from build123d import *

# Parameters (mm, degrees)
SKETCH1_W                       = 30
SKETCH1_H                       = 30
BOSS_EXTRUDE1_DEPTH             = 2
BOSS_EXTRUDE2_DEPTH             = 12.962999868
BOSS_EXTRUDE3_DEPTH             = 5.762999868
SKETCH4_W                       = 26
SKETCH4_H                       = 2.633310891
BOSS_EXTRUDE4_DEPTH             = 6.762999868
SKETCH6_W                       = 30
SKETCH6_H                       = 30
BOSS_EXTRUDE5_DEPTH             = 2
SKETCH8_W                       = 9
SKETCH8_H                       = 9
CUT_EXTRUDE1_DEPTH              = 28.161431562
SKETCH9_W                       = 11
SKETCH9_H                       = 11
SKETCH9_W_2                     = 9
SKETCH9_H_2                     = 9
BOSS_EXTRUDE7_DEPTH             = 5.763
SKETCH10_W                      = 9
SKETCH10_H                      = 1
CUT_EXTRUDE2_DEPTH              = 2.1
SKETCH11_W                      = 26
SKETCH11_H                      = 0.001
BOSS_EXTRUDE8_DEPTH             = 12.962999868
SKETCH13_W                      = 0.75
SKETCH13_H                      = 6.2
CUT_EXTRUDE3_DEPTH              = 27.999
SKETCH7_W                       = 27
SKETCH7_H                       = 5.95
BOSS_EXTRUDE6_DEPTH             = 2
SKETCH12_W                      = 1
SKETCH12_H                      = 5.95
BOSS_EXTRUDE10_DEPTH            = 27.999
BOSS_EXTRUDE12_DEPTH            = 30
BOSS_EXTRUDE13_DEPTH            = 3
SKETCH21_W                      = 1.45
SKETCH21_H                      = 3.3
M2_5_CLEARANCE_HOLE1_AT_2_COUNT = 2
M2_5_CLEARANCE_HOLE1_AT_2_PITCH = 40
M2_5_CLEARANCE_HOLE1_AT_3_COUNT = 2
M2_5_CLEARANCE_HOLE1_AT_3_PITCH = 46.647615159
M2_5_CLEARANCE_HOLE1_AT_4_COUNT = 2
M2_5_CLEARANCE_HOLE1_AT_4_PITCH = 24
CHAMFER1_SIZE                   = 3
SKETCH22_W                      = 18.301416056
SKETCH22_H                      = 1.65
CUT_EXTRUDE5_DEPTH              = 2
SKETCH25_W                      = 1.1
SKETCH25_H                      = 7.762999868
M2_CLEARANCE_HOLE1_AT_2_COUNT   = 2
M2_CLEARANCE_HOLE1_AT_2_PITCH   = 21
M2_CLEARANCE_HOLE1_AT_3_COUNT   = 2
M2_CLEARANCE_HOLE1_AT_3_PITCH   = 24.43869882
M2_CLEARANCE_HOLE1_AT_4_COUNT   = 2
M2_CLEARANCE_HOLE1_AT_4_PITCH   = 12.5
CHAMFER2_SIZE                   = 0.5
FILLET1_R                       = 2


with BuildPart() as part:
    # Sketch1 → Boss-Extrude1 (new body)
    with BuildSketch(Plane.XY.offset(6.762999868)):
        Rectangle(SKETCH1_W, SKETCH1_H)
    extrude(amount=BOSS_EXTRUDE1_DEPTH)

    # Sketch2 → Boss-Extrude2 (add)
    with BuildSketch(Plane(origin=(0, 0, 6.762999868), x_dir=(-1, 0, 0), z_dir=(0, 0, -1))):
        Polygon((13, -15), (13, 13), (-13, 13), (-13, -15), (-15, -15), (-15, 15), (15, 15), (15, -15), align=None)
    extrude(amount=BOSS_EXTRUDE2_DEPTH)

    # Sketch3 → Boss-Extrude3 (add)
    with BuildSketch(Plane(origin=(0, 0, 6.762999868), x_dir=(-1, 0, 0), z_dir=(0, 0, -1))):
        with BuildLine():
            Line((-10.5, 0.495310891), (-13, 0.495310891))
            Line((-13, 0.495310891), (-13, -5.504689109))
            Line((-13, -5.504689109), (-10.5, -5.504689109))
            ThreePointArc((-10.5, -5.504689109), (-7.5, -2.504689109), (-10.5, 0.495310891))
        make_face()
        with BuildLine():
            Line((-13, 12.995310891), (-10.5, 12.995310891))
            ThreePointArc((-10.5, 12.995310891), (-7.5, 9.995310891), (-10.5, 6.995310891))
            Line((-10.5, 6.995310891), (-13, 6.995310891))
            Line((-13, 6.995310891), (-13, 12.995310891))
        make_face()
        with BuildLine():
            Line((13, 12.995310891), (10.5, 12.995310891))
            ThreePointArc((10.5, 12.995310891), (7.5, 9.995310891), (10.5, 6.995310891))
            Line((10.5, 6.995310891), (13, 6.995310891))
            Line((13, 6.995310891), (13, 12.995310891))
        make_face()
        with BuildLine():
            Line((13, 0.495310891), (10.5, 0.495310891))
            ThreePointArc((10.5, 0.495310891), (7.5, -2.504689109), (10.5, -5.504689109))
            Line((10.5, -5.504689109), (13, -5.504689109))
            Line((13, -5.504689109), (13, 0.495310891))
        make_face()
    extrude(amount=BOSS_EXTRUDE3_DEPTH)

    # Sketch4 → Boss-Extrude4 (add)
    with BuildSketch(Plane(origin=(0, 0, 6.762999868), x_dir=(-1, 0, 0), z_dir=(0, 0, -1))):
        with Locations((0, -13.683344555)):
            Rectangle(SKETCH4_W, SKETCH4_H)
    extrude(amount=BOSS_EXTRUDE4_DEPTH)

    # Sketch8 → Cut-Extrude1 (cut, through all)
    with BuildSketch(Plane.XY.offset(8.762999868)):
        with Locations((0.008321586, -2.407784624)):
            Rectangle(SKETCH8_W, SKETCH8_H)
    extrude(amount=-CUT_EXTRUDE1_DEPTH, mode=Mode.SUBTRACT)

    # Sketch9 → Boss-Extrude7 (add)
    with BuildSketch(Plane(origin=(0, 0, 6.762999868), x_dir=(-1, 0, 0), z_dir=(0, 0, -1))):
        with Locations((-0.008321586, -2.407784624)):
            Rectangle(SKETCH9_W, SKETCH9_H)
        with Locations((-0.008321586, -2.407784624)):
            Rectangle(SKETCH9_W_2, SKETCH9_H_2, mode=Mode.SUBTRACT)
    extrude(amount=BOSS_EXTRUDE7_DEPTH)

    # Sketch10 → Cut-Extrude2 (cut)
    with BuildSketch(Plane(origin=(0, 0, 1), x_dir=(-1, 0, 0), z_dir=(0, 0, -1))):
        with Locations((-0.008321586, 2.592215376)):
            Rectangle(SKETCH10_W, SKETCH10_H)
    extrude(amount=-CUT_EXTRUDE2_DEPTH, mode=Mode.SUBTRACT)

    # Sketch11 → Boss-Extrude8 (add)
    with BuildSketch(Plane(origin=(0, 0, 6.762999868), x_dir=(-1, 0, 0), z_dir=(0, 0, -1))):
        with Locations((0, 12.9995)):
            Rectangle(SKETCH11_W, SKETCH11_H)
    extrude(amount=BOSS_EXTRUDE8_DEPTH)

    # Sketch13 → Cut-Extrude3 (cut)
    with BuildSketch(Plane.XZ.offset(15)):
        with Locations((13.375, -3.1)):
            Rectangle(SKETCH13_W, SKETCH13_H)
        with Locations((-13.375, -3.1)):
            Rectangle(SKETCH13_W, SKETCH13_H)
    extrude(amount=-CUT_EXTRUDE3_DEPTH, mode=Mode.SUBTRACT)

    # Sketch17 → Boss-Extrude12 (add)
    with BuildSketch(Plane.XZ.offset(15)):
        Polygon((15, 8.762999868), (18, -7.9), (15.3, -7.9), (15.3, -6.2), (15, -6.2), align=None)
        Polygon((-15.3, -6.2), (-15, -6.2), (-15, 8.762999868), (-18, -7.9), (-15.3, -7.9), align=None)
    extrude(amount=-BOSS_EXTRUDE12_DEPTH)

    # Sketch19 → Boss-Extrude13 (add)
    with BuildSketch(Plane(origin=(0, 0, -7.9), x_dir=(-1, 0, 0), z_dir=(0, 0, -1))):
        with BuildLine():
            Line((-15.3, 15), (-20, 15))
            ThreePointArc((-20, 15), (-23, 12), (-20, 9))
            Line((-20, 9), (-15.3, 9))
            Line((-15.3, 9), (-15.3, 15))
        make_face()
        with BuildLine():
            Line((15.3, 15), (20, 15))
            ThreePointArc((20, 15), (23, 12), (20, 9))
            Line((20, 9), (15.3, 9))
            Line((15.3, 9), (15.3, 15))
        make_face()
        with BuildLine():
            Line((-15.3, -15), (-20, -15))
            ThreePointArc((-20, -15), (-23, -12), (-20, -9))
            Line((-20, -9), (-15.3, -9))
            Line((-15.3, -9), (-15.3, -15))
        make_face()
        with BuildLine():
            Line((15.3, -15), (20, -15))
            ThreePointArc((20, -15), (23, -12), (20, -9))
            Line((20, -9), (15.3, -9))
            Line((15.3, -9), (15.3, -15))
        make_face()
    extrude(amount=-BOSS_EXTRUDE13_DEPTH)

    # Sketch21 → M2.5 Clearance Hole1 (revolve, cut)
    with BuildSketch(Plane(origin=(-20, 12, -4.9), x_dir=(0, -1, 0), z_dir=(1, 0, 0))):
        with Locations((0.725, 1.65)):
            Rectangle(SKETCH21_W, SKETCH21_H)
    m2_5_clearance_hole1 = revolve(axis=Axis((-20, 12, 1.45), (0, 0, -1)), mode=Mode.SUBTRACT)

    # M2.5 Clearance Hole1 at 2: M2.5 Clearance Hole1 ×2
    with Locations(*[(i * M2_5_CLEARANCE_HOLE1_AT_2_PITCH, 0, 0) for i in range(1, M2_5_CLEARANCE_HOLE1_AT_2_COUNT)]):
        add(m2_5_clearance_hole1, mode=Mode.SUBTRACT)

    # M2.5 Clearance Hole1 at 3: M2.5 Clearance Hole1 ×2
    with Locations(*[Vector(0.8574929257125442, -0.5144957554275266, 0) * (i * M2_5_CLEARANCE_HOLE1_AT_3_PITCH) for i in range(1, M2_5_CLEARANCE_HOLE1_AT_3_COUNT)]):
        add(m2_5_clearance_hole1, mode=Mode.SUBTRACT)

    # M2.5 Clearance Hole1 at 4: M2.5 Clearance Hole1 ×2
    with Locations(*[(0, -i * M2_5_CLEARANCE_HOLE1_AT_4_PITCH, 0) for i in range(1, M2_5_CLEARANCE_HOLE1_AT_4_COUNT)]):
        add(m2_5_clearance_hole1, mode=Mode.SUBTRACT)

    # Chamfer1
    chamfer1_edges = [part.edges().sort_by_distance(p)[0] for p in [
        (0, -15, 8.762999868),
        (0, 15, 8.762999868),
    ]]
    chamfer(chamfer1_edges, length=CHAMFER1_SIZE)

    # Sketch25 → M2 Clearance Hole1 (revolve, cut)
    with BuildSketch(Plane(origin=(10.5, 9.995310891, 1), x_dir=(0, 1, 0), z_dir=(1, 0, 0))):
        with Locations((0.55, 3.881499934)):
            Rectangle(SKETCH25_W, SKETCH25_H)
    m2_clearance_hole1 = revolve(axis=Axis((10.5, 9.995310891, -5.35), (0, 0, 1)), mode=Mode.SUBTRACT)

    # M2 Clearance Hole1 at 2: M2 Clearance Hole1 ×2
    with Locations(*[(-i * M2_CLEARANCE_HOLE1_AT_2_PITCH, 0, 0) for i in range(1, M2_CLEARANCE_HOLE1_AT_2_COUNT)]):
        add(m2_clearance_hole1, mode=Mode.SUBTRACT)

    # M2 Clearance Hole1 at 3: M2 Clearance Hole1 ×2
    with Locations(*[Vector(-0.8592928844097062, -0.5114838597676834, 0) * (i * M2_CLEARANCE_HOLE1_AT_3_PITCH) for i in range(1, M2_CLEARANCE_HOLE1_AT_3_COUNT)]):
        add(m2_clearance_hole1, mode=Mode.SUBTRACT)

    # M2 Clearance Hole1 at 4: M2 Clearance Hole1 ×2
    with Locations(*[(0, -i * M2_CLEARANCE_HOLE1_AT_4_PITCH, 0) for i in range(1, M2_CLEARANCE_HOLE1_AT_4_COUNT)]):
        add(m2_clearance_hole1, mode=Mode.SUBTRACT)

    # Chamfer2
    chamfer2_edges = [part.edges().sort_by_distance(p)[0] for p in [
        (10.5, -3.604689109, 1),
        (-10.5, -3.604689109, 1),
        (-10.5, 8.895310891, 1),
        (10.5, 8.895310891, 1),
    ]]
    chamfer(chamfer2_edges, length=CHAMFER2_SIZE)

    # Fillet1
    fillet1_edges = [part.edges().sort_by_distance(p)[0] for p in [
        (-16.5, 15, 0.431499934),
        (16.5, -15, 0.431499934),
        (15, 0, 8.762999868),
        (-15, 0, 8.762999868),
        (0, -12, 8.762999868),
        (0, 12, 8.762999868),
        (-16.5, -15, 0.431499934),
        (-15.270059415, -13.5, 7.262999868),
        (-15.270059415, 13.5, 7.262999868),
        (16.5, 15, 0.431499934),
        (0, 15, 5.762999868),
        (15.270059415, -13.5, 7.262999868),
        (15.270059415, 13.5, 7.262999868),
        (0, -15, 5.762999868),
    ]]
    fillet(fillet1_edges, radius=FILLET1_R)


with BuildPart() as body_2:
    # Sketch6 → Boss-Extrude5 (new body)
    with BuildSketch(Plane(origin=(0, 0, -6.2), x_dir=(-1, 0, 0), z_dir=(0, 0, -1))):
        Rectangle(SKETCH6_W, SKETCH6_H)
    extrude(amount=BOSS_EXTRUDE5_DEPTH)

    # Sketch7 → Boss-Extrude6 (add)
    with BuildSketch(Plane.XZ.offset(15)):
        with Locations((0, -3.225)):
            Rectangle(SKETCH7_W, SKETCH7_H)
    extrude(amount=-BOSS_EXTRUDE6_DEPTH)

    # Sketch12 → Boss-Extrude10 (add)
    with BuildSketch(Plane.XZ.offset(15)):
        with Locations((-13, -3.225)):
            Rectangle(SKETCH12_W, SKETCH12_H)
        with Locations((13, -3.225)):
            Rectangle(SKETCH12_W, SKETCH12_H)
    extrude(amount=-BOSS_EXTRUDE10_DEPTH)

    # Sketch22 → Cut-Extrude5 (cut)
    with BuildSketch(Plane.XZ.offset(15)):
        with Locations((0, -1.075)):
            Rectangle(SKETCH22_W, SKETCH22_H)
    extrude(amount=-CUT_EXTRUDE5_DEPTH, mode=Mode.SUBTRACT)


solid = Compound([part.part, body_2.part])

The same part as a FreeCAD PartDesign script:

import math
import FreeCAD as App
import Part
import Sketcher

V = App.Vector


def edges_at(feature, points):
    """Names of the edges that pass closest to the given points."""
    edges = feature.Shape.Edges
    near = lambda p: min(range(len(edges)), key=lambda i: edges[i].distToShape(Part.Vertex(*p))[0])
    return sorted({f"Edge{near(p) + 1}" for p in points})


def add_polygon(sketch, points):
    """Adds a closed chain of lines whose ends are joined by coincident constraints."""
    first, n = sketch.GeometryCount, len(points)
    for a, b in zip(points, points[1:] + points[:1]):
        sketch.addGeometry(Part.LineSegment(App.Vector(*a, 0), App.Vector(*b, 0)), False)
    for i in range(n):
        sketch.addConstraint(Sketcher.Constraint("Coincident", first + i, 2, first + (i + 1) % n, 1))

doc = App.newDocument("Part")
body = doc.addObject("PartDesign::Body", "Body")

# Sketch on XY plane
sketch1 = body.newObject("Sketcher::SketchObject", "Sketch")
sketch1.AttachmentSupport = (doc.getObject("XY_Plane"), [""])
sketch1.MapMode = "FlatFace"
sketch1.AttachmentOffset = App.Placement(V(0, 0, 6.763), App.Rotation())
add_polygon(sketch1, [(-15, 15), (-15, -15), (15, -15), (15, 15)])  # lines 0-3
sketch1.addConstraint([
    Sketcher.Constraint("Vertical", 0),
    Sketcher.Constraint("Horizontal", 1),
    Sketcher.Constraint("Vertical", 2),
    Sketcher.Constraint("Horizontal", 3),
    Sketcher.Constraint("Symmetric", 0, 2, 2, 2, -1, 1),
    Sketcher.Constraint("Equal", 3, 0),
    Sketcher.Constraint("DistanceX", 1, 1, 1, 2, 30.0),
])
pad1 = body.newObject("PartDesign::Pad", "Pad")
pad1.Profile = sketch1
pad1.Length = 2

# Sketch on XY plane
sketch2 = body.newObject("Sketcher::SketchObject", "Sketch001")
sketch2.AttachmentSupport = (doc.getObject("XY_Plane"), [""])
sketch2.MapMode = "FlatFace"
sketch2.AttachmentOffset = App.Placement(V(0, 0, 6.763), App.Rotation())
add_polygon(sketch2, [(-13, 13), (-13, -15), (-15, -15), (-15, 15), (15, 15), (15, -15), (13, -15), (13, 13)])  # lines 0-7
sketch2.addConstraint([
    Sketcher.Constraint("Vertical", 0),
    Sketcher.Constraint("Horizontal", 1),
    Sketcher.Constraint("Vertical", 2),
    Sketcher.Constraint("Horizontal", 3),
    Sketcher.Constraint("Vertical", 4),
    Sketcher.Constraint("Horizontal", 5),
    Sketcher.Constraint("Vertical", 6),
    Sketcher.Constraint("Horizontal", 7),
    Sketcher.Constraint("Symmetric", 1, 2, 3, 2, -1, 1),
    Sketcher.Constraint("Symmetric", 0, 2, 5, 2, -2),
    Sketcher.Constraint("Equal", 3, 2),
    Sketcher.Constraint("DistanceX", 1, 2, 1, 1, 2.0),
    Sketcher.Constraint("DistanceX", 3, 1, 3, 2, 30.0),
    Sketcher.Constraint("DistanceY", 0, 2, 0, 1, 28.0),
])
pad2 = body.newObject("PartDesign::Pad", "Pad001")
pad2.Profile = sketch2
pad2.Length = 12.963
pad2.Reversed = True

# Sketch on XY plane
sketch3 = body.newObject("Sketcher::SketchObject", "Sketch002")
sketch3.AttachmentSupport = (doc.getObject("XY_Plane"), [""])
sketch3.MapMode = "FlatFace"
sketch3.AttachmentOffset = App.Placement(V(0, 0, 6.763), App.Rotation())
sketch3.addGeometry([
    Part.LineSegment(V(10.5, 0.5, 0), V(13, 0.5, 0)),  # 0
    Part.LineSegment(V(13, 0.5, 0), V(13, -5.5, 0)),  # 1
    Part.LineSegment(V(13, -5.5, 0), V(10.5, -5.5, 0)),  # 2
    Part.ArcOfCircle(Part.Circle(V(10.5, -2.5, 0), V(0, 0, 1), 3), math.radians(90), math.radians(270)),  # 3
    Part.LineSegment(V(10.5, 13, 0), V(13, 13, 0)),  # 4
    Part.LineSegment(V(13, 13, 0), V(13, 7, 0)),  # 5
    Part.LineSegment(V(13, 7, 0), V(10.5, 7, 0)),  # 6
    Part.ArcOfCircle(Part.Circle(V(10.5, 10, 0), V(0, 0, 1), 3), math.radians(90), math.radians(270)),  # 7
    Part.LineSegment(V(-13, 13, 0), V(-10.5, 13, 0)),  # 8
    Part.ArcOfCircle(Part.Circle(V(-10.5, 10, 0), V(0, 0, 1), 3), math.radians(-90), math.radians(90)),  # 9
    Part.LineSegment(V(-10.5, 7, 0), V(-13, 7, 0)),  # 10
    Part.LineSegment(V(-13, 7, 0), V(-13, 13, 0)),  # 11
    Part.LineSegment(V(-13, 0.5, 0), V(-10.5, 0.5, 0)),  # 12
    Part.ArcOfCircle(Part.Circle(V(-10.5, -2.5, 0), V(0, 0, 1), 3), math.radians(-90), math.radians(90)),  # 13
    Part.LineSegment(V(-10.5, -5.5, 0), V(-13, -5.5, 0)),  # 14
    Part.LineSegment(V(-13, -5.5, 0), V(-13, 0.5, 0)),  # 15
], False)
sketch3.addConstraint([
    Sketcher.Constraint("Coincident", 0, 2, 1, 1),
    Sketcher.Constraint("Coincident", 1, 2, 2, 1),
    Sketcher.Constraint("Tangent", 2, 2, 3, 2),
    Sketcher.Constraint("Tangent", 3, 1, 0, 1),
    Sketcher.Constraint("Coincident", 4, 2, 5, 1),
    Sketcher.Constraint("Coincident", 5, 2, 6, 1),
    Sketcher.Constraint("Tangent", 6, 2, 7, 2),
    Sketcher.Constraint("Tangent", 7, 1, 4, 1),
    Sketcher.Constraint("Tangent", 8, 2, 9, 2),
    Sketcher.Constraint("Tangent", 9, 1, 10, 1),
    Sketcher.Constraint("Coincident", 10, 2, 11, 1),
    Sketcher.Constraint("Coincident", 11, 2, 8, 1),
    Sketcher.Constraint("Tangent", 12, 2, 13, 2),
    Sketcher.Constraint("Tangent", 13, 1, 14, 1),
    Sketcher.Constraint("Coincident", 14, 2, 15, 1),
    Sketcher.Constraint("Coincident", 15, 2, 12, 1),
    Sketcher.Constraint("Horizontal", 0),
    Sketcher.Constraint("Vertical", 1),
    Sketcher.Constraint("Horizontal", 2),
    Sketcher.Constraint("Horizontal", 4),
    Sketcher.Constraint("Vertical", 5),
    Sketcher.Constraint("Horizontal", 6),
    Sketcher.Constraint("Horizontal", 8),
    Sketcher.Constraint("Horizontal", 10),
    Sketcher.Constraint("Vertical", 11),
    Sketcher.Constraint("Horizontal", 12),
    Sketcher.Constraint("Horizontal", 14),
    Sketcher.Constraint("Vertical", 15),
    Sketcher.Constraint("Equal", 3, 7),
    Sketcher.Constraint("Equal", 7, 9),
    Sketcher.Constraint("Equal", 9, 13),
    Sketcher.Constraint("Symmetric", 7, 3, 9, 3, -2),
    Sketcher.Constraint("Symmetric", 3, 3, 13, 3, -2),
    Sketcher.Constraint("Vertical", 3, 3, 7, 3),
    Sketcher.Constraint("Vertical", 1, 2, 4, 2),
    Sketcher.Constraint("Vertical", 11, 2, 14, 2),
    Sketcher.Constraint("Equal", 6, 8),
    Sketcher.Constraint("Radius", 3, 3.0),
    Sketcher.Constraint("DistanceX", 0, 1, 0, 2, 2.5),
    Sketcher.Constraint("DistanceX", -1, 1, 0, 2, 13.0),
    Sketcher.Constraint("DistanceY", 3, 3, 7, 3, 12.5),
    Sketcher.Constraint("DistanceY", 3, 3, -1, 1, 2.504689),
])
pad3 = body.newObject("PartDesign::Pad", "Pad002")
pad3.Profile = sketch3
pad3.Length = 5.763
pad3.Reversed = True

# Sketch on XY plane
sketch4 = body.newObject("Sketcher::SketchObject", "Sketch003")
sketch4.AttachmentSupport = (doc.getObject("XY_Plane"), [""])
sketch4.MapMode = "FlatFace"
sketch4.AttachmentOffset = App.Placement(V(0, 0, 6.763), App.Rotation())
add_polygon(sketch4, [(13, -12.4), (13, -15), (-13, -15), (-13, -12.4)])  # lines 0-3
sketch4.addConstraint([
    Sketcher.Constraint("Vertical", 0),
    Sketcher.Constraint("Horizontal", 1),
    Sketcher.Constraint("Vertical", 2),
    Sketcher.Constraint("Horizontal", 3),
    Sketcher.Constraint("DistanceX", 1, 2, 1, 1, 26.0),
    Sketcher.Constraint("DistanceX", -1, 1, 0, 2, 13.0),
    Sketcher.Constraint("DistanceY", 0, 2, -1, 1, 15.0),
    Sketcher.Constraint("DistanceY", 0, 2, 0, 1, 2.633311),
])
pad4 = body.newObject("PartDesign::Pad", "Pad003")
pad4.Profile = sketch4
pad4.Length = 6.763
pad4.Reversed = True

# Sketch on XY plane
sketch5 = body.newObject("Sketcher::SketchObject", "Sketch004")
sketch5.AttachmentSupport = (doc.getObject("XY_Plane"), [""])
sketch5.MapMode = "FlatFace"
sketch5.AttachmentOffset = App.Placement(V(0, 0, 8.763), App.Rotation())
add_polygon(sketch5, [(-4, 2), (-4, -7), (5, -7), (5, 2)])  # lines 0-3
sketch5.addConstraint([
    Sketcher.Constraint("Vertical", 0),
    Sketcher.Constraint("Horizontal", 1),
    Sketcher.Constraint("Vertical", 2),
    Sketcher.Constraint("Horizontal", 3),
    Sketcher.Constraint("Equal", 3, 0),
    Sketcher.Constraint("DistanceX", 1, 1, 1, 2, 9.0),
    Sketcher.Constraint("DistanceX", 0, 2, -1, 1, 4.491678),
    Sketcher.Constraint("DistanceY", 0, 2, -1, 1, 6.907785),
])
pocket1 = body.newObject("PartDesign::Pocket", "Pocket")
pocket1.Profile = sketch5
pocket1.Type = "ThroughAll"

# Sketch on XY plane
sketch6 = body.newObject("Sketcher::SketchObject", "Sketch005")
sketch6.AttachmentSupport = (doc.getObject("XY_Plane"), [""])
sketch6.MapMode = "FlatFace"
sketch6.AttachmentOffset = App.Placement(V(0, 0, 6.763), App.Rotation())
add_polygon(sketch6, [(6, 3), (6, -8), (-5, -8), (-5, 3)])  # lines 0-3
add_polygon(sketch6, [(-4, -7), (5, -7), (5, 2), (-4, 2)])  # lines 4-7
sketch6.addConstraint([
    Sketcher.Constraint("Vertical", 0),
    Sketcher.Constraint("Horizontal", 1),
    Sketcher.Constraint("Vertical", 2),
    Sketcher.Constraint("Horizontal", 3),
    Sketcher.Constraint("Horizontal", 4),
    Sketcher.Constraint("Vertical", 5),
    Sketcher.Constraint("Horizontal", 6),
    Sketcher.Constraint("Vertical", 7),
    Sketcher.Constraint("Equal", 3, 0),
    Sketcher.Constraint("Equal", 6, 5),
    Sketcher.Constraint("DistanceX", 1, 2, 1, 1, 11.0),
    Sketcher.Constraint("DistanceX", 4, 1, 4, 2, 9.0),
    Sketcher.Constraint("DistanceX", 4, 2, 0, 2, 1.0),
    Sketcher.Constraint("DistanceY", 0, 2, 4, 2, 1.0),
    Sketcher.Constraint("DistanceX", -1, 1, 0, 2, 5.508322),
    Sketcher.Constraint("DistanceY", 0, 2, -1, 1, 7.907785),
])
pad5 = body.newObject("PartDesign::Pad", "Pad004")
pad5.Profile = sketch6
pad5.Length = 5.763
pad5.Reversed = True

# Sketch on XY plane
sketch7 = body.newObject("Sketcher::SketchObject", "Sketch006")
sketch7.AttachmentSupport = (doc.getObject("XY_Plane"), [""])
sketch7.MapMode = "FlatFace"
sketch7.AttachmentOffset = App.Placement(V(0, 0, 1), App.Rotation())
add_polygon(sketch7, [(4.5, 3.1), (4.5, 2.1), (-4.5, 2.1), (-4.5, 3.1)])  # lines 0-3
sketch7.addConstraint([
    Sketcher.Constraint("Vertical", 0),
    Sketcher.Constraint("Horizontal", 1),
    Sketcher.Constraint("Vertical", 2),
    Sketcher.Constraint("Horizontal", 3),
    Sketcher.Constraint("DistanceX", 1, 2, 1, 1, 9.0),
    Sketcher.Constraint("DistanceY", 0, 2, 0, 1, 1.0),
    Sketcher.Constraint("DistanceX", -1, 1, 0, 2, 4.508322),
    Sketcher.Constraint("DistanceY", -1, 1, 0, 2, 2.092215),
])
pocket2 = body.newObject("PartDesign::Pocket", "Pocket001")
pocket2.Profile = sketch7
pocket2.Length = 2.1
pocket2.Reversed = True

# Sketch on XY plane
sketch8 = body.newObject("Sketcher::SketchObject", "Sketch007")
sketch8.AttachmentSupport = (doc.getObject("XY_Plane"), [""])
sketch8.MapMode = "FlatFace"
sketch8.AttachmentOffset = App.Placement(V(0, 0, 6.763), App.Rotation())
add_polygon(sketch8, [(13, 13), (13, 12.999), (-13, 12.999), (-13, 13)])  # lines 0-3
sketch8.addConstraint([
    Sketcher.Constraint("Vertical", 0),
    Sketcher.Constraint("Horizontal", 1),
    Sketcher.Constraint("Vertical", 2),
    Sketcher.Constraint("Horizontal", 3),
    Sketcher.Constraint("DistanceX", 1, 2, 1, 1, 26.0),
    Sketcher.Constraint("DistanceX", -1, 1, 0, 2, 13.0),
    Sketcher.Constraint("DistanceY", -1, 1, 2, 2, 13.0),
    Sketcher.Constraint("DistanceY", 0, 2, 0, 1, 0.001),
])
pad6 = body.newObject("PartDesign::Pad", "Pad005")
pad6.Profile = sketch8
pad6.Length = 12.963
pad6.Reversed = True

# Sketch on XZ plane
sketch9 = body.newObject("Sketcher::SketchObject", "Sketch008")
sketch9.AttachmentSupport = (doc.getObject("XZ_Plane"), [""])
sketch9.MapMode = "FlatFace"
sketch9.AttachmentOffset = App.Placement(V(0, 0, 15), App.Rotation())
add_polygon(sketch9, [(13, 0), (13, -6.2), (13.8, -6.2), (13.8, 0)])  # lines 0-3
add_polygon(sketch9, [(-13.8, 0), (-13.8, -6.2), (-13, -6.2), (-13, 0)])  # lines 4-7
sketch9.addConstraint([
    Sketcher.Constraint("Vertical", 0),
    Sketcher.Constraint("Horizontal", 1),
    Sketcher.Constraint("Vertical", 2),
    Sketcher.Constraint("Horizontal", 3),
    Sketcher.Constraint("Vertical", 4),
    Sketcher.Constraint("Horizontal", 5),
    Sketcher.Constraint("Vertical", 6),
    Sketcher.Constraint("Horizontal", 7),
    Sketcher.Constraint("Symmetric", 3, 2, 6, 2, -1, 1),
    Sketcher.Constraint("Symmetric", 1, 2, 4, 2, -2),
    Sketcher.Constraint("PointOnObject", 2, 2, -1),
    Sketcher.Constraint("DistanceY", 0, 2, 0, 1, 6.2),
    Sketcher.Constraint("DistanceX", -1, 1, 0, 2, 13.0),
    Sketcher.Constraint("DistanceX", 1, 1, 1, 2, 0.75),
])
pocket3 = body.newObject("PartDesign::Pocket", "Pocket002")
pocket3.Profile = sketch9
pocket3.Length = 27.999

# Sketch on XZ plane
sketch10 = body.newObject("Sketcher::SketchObject", "Sketch009")
sketch10.AttachmentSupport = (doc.getObject("XZ_Plane"), [""])
sketch10.MapMode = "FlatFace"
sketch10.AttachmentOffset = App.Placement(V(0, 0, 15), App.Rotation())
add_polygon(sketch10, [(18, -7.9), (15, 8.76), (15, -6.2), (15.3, -6.2), (15.3, -7.9)])  # lines 0-4
add_polygon(sketch10, [(-15.3, -6.2), (-15, -6.2), (-15, 8.76), (-18, -7.9), (-15.3, -7.9)])  # lines 5-9
sketch10.addConstraint([
    Sketcher.Constraint("Vertical", 1),
    Sketcher.Constraint("Horizontal", 2),
    Sketcher.Constraint("Vertical", 3),
    Sketcher.Constraint("Horizontal", 4),
    Sketcher.Constraint("Horizontal", 5),
    Sketcher.Constraint("Vertical", 6),
    Sketcher.Constraint("Horizontal", 8),
    Sketcher.Constraint("Vertical", 9),
    Sketcher.Constraint("Symmetric", 1, 2, 5, 2, -2),
    Sketcher.Constraint("Symmetric", 4, 2, 7, 2, -2),
    Sketcher.Constraint("Horizontal", 0, 2, 6, 2),
    Sketcher.Constraint("Equal", 2, 5),
    Sketcher.Constraint("DistanceX", 2, 1, 2, 2, 0.3),
    Sketcher.Constraint("DistanceX", 4, 1, 4, 2, 2.7),
    Sketcher.Constraint("DistanceY", 3, 2, 3, 1, 1.7),
    Sketcher.Constraint("DistanceX", -1, 1, 0, 2, 15.0),
    Sketcher.Constraint("DistanceY", 1, 2, -1, 1, 6.2),
    Sketcher.Constraint("DistanceY", 1, 2, 1, 1, 14.963),
])
pad7 = body.newObject("PartDesign::Pad", "Pad006")
pad7.Profile = sketch10
pad7.Length = 30
pad7.Reversed = True

# Sketch on XY plane
sketch11 = body.newObject("Sketcher::SketchObject", "Sketch010")
sketch11.AttachmentSupport = (doc.getObject("XY_Plane"), [""])
sketch11.MapMode = "FlatFace"
sketch11.AttachmentOffset = App.Placement(V(0, 0, -7.9), App.Rotation())
sketch11.addGeometry([
    Part.LineSegment(V(15.3, 15, 0), V(20, 15, 0)),  # 0
    Part.ArcOfCircle(Part.Circle(V(20, 12, 0), V(0, 0, 1), 3), math.radians(-90), math.radians(90)),  # 1
    Part.LineSegment(V(20, 9, 0), V(15.3, 9, 0)),  # 2
    Part.LineSegment(V(15.3, 9, 0), V(15.3, 15, 0)),  # 3
    Part.LineSegment(V(-20, 15, 0), V(-15.3, 15, 0)),  # 4
    Part.LineSegment(V(-15.3, 15, 0), V(-15.3, 9, 0)),  # 5
    Part.LineSegment(V(-15.3, 9, 0), V(-20, 9, 0)),  # 6
    Part.ArcOfCircle(Part.Circle(V(-20, 12, 0), V(0, 0, 1), 3), math.radians(90), math.radians(270)),  # 7
    Part.LineSegment(V(20, -15, 0), V(15.3, -15, 0)),  # 8
    Part.LineSegment(V(15.3, -15, 0), V(15.3, -9, 0)),  # 9
    Part.LineSegment(V(15.3, -9, 0), V(20, -9, 0)),  # 10
    Part.ArcOfCircle(Part.Circle(V(20, -12, 0), V(0, 0, 1), 3), math.radians(-90), math.radians(90)),  # 11
    Part.LineSegment(V(-15.3, -15, 0), V(-20, -15, 0)),  # 12
    Part.ArcOfCircle(Part.Circle(V(-20, -12, 0), V(0, 0, 1), 3), math.radians(90), math.radians(270)),  # 13
    Part.LineSegment(V(-20, -9, 0), V(-15.3, -9, 0)),  # 14
    Part.LineSegment(V(-15.3, -9, 0), V(-15.3, -15, 0)),  # 15
], False)
sketch11.addConstraint([
    Sketcher.Constraint("Tangent", 0, 2, 1, 2),
    Sketcher.Constraint("Tangent", 1, 1, 2, 1),
    Sketcher.Constraint("Coincident", 2, 2, 3, 1),
    Sketcher.Constraint("Coincident", 3, 2, 0, 1),
    Sketcher.Constraint("Coincident", 4, 2, 5, 1),
    Sketcher.Constraint("Coincident", 5, 2, 6, 1),
    Sketcher.Constraint("Tangent", 6, 2, 7, 2),
    Sketcher.Constraint("Tangent", 7, 1, 4, 1),
    Sketcher.Constraint("Coincident", 8, 2, 9, 1),
    Sketcher.Constraint("Coincident", 9, 2, 10, 1),
    Sketcher.Constraint("Tangent", 10, 2, 11, 2),
    Sketcher.Constraint("Tangent", 11, 1, 8, 1),
    Sketcher.Constraint("Tangent", 12, 2, 13, 2),
    Sketcher.Constraint("Tangent", 13, 1, 14, 1),
    Sketcher.Constraint("Coincident", 14, 2, 15, 1),
    Sketcher.Constraint("Coincident", 15, 2, 12, 1),
    Sketcher.Constraint("Horizontal", 0),
    Sketcher.Constraint("Horizontal", 2),
    Sketcher.Constraint("Vertical", 3),
    Sketcher.Constraint("Horizontal", 4),
    Sketcher.Constraint("Vertical", 5),
    Sketcher.Constraint("Horizontal", 6),
    Sketcher.Constraint("Horizontal", 8),
    Sketcher.Constraint("Vertical", 9),
    Sketcher.Constraint("Horizontal", 10),
    Sketcher.Constraint("Horizontal", 12),
    Sketcher.Constraint("Horizontal", 14),
    Sketcher.Constraint("Vertical", 15),
    Sketcher.Constraint("Equal", 1, 7),
    Sketcher.Constraint("Equal", 7, 11),
    Sketcher.Constraint("Equal", 11, 13),
    Sketcher.Constraint("Symmetric", 7, 3, 11, 3, -1, 1),
    Sketcher.Constraint("Symmetric", 1, 3, 13, 3, -1, 1),
    Sketcher.Constraint("Symmetric", 1, 3, 7, 3, -2),
    Sketcher.Constraint("Vertical", 3, 2, 8, 2),
    Sketcher.Constraint("Vertical", 5, 2, 14, 2),
    Sketcher.Constraint("Equal", 2, 4),
    Sketcher.Constraint("Radius", 1, 3.0),
    Sketcher.Constraint("DistanceX", 0, 1, 0, 2, 4.7),
    Sketcher.Constraint("DistanceX", -1, 1, 1, 3, 20.0),
    Sketcher.Constraint("DistanceY", -1, 1, 1, 3, 12.0),
])
pad8 = body.newObject("PartDesign::Pad", "Pad007")
pad8.Profile = sketch11
pad8.Length = 3

# Sketch on YZ plane
sketch12 = body.newObject("Sketcher::SketchObject", "Sketch011")
sketch12.AttachmentSupport = (doc.getObject("YZ_Plane"), [""])
sketch12.MapMode = "FlatFace"
sketch12.AttachmentOffset = App.Placement(V(0, 0, -20), App.Rotation())
add_polygon(sketch12, [(12, -8.2), (12, -4.9), (10.6, -4.9), (10.6, -8.2)])  # lines 0-3
sketch12.addGeometry(Part.LineSegment(V(12, -4.9, 0), V(12, -8.2, 0)), True)  # axis
sketch12.addConstraint([
    Sketcher.Constraint("Vertical", 0),
    Sketcher.Constraint("Horizontal", 1),
    Sketcher.Constraint("Vertical", 2),
    Sketcher.Constraint("Horizontal", 3),
    Sketcher.Constraint("Vertical", 4),
    Sketcher.Constraint("Coincident", 4, 1, 0, 2),
    Sketcher.Constraint("Horizontal", 2, 2, 4, 2),
    Sketcher.Constraint("DistanceY", 0, 1, 0, 2, 3.3),
    Sketcher.Constraint("DistanceX", -1, 1, 0, 2, 12.0),
    Sketcher.Constraint("DistanceX", 1, 2, 1, 1, 1.45),
    Sketcher.Constraint("DistanceY", 0, 2, -1, 1, 4.9),
])
groove = body.newObject("PartDesign::Groove", "Groove")
groove.Profile = sketch12
groove.ReferenceAxis = (sketch12, ["Axis0"])
groove.Angle = 360
doc.recompute()

linearpattern = body.newObject("PartDesign::LinearPattern", "LinearPattern")
linearpattern.Originals = [groove]
linearpattern.Direction = (doc.getObject("X_Axis"), [""])
linearpattern.Mode = "offset"
linearpattern.Offset = 40
linearpattern.Occurrences = 2
body.Tip = linearpattern
doc.recompute()

datumline = body.newObject("PartDesign::Line", "DatumLine")
datumline.Placement = App.Placement(V(0, 0, 0), App.Rotation(V(0, 0, 1), V(0.857492926, -0.514495755, 0)))
linearpattern2 = body.newObject("PartDesign::LinearPattern", "LinearPattern001")
linearpattern2.Originals = [groove]
linearpattern2.Direction = (datumline, [""])
linearpattern2.Mode = "offset"
linearpattern2.Offset = 46.647615
linearpattern2.Occurrences = 2
body.Tip = linearpattern2
doc.recompute()

linearpattern3 = body.newObject("PartDesign::LinearPattern", "LinearPattern002")
linearpattern3.Originals = [groove]
linearpattern3.Direction = (doc.getObject("Y_Axis"), [""])
linearpattern3.Mode = "offset"
linearpattern3.Offset = 24
linearpattern3.Occurrences = 2
linearpattern3.Reversed = True
body.Tip = linearpattern3
doc.recompute()

chamfer = body.newObject("PartDesign::Chamfer", "Chamfer")
chamfer.Base = (linearpattern3, edges_at(linearpattern3, [(0, -15, 8.763), (0, 15, 8.763)]))
chamfer.Size = 3

# Sketch on YZ plane
sketch13 = body.newObject("Sketcher::SketchObject", "Sketch012")
sketch13.AttachmentSupport = (doc.getObject("YZ_Plane"), [""])
sketch13.MapMode = "FlatFace"
sketch13.AttachmentOffset = App.Placement(V(0, 0, 10.5), App.Rotation())
add_polygon(sketch13, [(10, 8.8), (10, 1), (11.1, 1), (11.1, 8.8)])  # lines 0-3
sketch13.addGeometry(Part.LineSegment(V(10, 1, 0), V(10, 8.8, 0)), True)  # axis
sketch13.addConstraint([
    Sketcher.Constraint("Vertical", 0),
    Sketcher.Constraint("Horizontal", 1),
    Sketcher.Constraint("Vertical", 2),
    Sketcher.Constraint("Horizontal", 3),
    Sketcher.Constraint("Vertical", 4),
    Sketcher.Constraint("Coincident", 4, 1, 0, 2),
    Sketcher.Constraint("Horizontal", 2, 2, 4, 2),
    Sketcher.Constraint("DistanceX", 1, 1, 1, 2, 1.1),
    Sketcher.Constraint("DistanceY", -1, 1, 0, 2, 1.0),
    Sketcher.Constraint("DistanceY", 0, 2, 0, 1, 7.763),
    Sketcher.Constraint("DistanceX", -1, 1, 0, 2, 9.995311),
])
groove2 = body.newObject("PartDesign::Groove", "Groove001")
groove2.Profile = sketch13
groove2.ReferenceAxis = (sketch13, ["Axis0"])
groove2.Angle = 360
doc.recompute()

linearpattern4 = body.newObject("PartDesign::LinearPattern", "LinearPattern003")
linearpattern4.Originals = [groove2]
linearpattern4.Direction = (doc.getObject("X_Axis"), [""])
linearpattern4.Mode = "offset"
linearpattern4.Offset = 21
linearpattern4.Occurrences = 2
linearpattern4.Reversed = True
body.Tip = linearpattern4
doc.recompute()

datumline2 = body.newObject("PartDesign::Line", "DatumLine001")
datumline2.Placement = App.Placement(V(0, 0, 0), App.Rotation(V(0, 0, 1), V(-0.859292884, -0.51148386, 0)))
linearpattern5 = body.newObject("PartDesign::LinearPattern", "LinearPattern004")
linearpattern5.Originals = [groove2]
linearpattern5.Direction = (datumline2, [""])
linearpattern5.Mode = "offset"
linearpattern5.Offset = 24.438699
linearpattern5.Occurrences = 2
body.Tip = linearpattern5
doc.recompute()

linearpattern6 = body.newObject("PartDesign::LinearPattern", "LinearPattern005")
linearpattern6.Originals = [groove2]
linearpattern6.Direction = (doc.getObject("Y_Axis"), [""])
linearpattern6.Mode = "offset"
linearpattern6.Offset = 12.5
linearpattern6.Occurrences = 2
linearpattern6.Reversed = True
body.Tip = linearpattern6
doc.recompute()

chamfer2 = body.newObject("PartDesign::Chamfer", "Chamfer001")
chamfer2.Base = (linearpattern6, edges_at(linearpattern6, [
    (10.5, -3.605, 1),
    (-10.5, -3.605, 1),
    (-10.5, 8.895, 1),
    (10.5, 8.895, 1),
]))
chamfer2.Size = 0.5
doc.recompute()

fillet = body.newObject("PartDesign::Fillet", "Fillet")
fillet.Base = (chamfer2, edges_at(chamfer2, [
    (-16.5, 15, 0.431),
    (16.5, -15, 0.431),
    (15, 0, 8.763),
    (-15, 0, 8.763),
    (0, -12, 8.763),
    (0, 12, 8.763),
    (-16.5, -15, 0.431),
    (-15.27, -13.5, 7.263),
    (-15.27, 13.5, 7.263),
    (16.5, 15, 0.431),
    (0, 15, 5.763),
    (15.27, -13.5, 7.263),
    (15.27, 13.5, 7.263),
    (0, -15, 5.763),
]))
fillet.Radius = 2
body2 = doc.addObject("PartDesign::Body", "Body001")

# Sketch on XY plane
sketch14 = body2.newObject("Sketcher::SketchObject", "Sketch013")
sketch14.AttachmentSupport = (doc.getObject("XY_Plane001"), [""])
sketch14.MapMode = "FlatFace"
sketch14.AttachmentOffset = App.Placement(V(0, 0, -6.2), App.Rotation())
add_polygon(sketch14, [(15, 15), (15, -15), (-15, -15), (-15, 15)])  # lines 0-3
sketch14.addConstraint([
    Sketcher.Constraint("Vertical", 0),
    Sketcher.Constraint("Horizontal", 1),
    Sketcher.Constraint("Vertical", 2),
    Sketcher.Constraint("Horizontal", 3),
    Sketcher.Constraint("Symmetric", 0, 2, 2, 2, -1, 1),
    Sketcher.Constraint("Equal", 3, 0),
    Sketcher.Constraint("DistanceX", 1, 2, 1, 1, 30.0),
])
pad9 = body2.newObject("PartDesign::Pad", "Pad008")
pad9.Profile = sketch14
pad9.Length = 2
pad9.Reversed = True

# Sketch on XZ plane
sketch15 = body2.newObject("Sketcher::SketchObject", "Sketch014")
sketch15.AttachmentSupport = (doc.getObject("XZ_Plane001"), [""])
sketch15.MapMode = "FlatFace"
sketch15.AttachmentOffset = App.Placement(V(0, 0, 15), App.Rotation())
add_polygon(sketch15, [(-14, 0), (-14, -6), (14, -6), (14, 0)])  # lines 0-3
sketch15.addConstraint([
    Sketcher.Constraint("Vertical", 0),
    Sketcher.Constraint("Horizontal", 1),
    Sketcher.Constraint("Vertical", 2),
    Sketcher.Constraint("Horizontal", 3),
    Sketcher.Constraint("DistanceX", 1, 1, 1, 2, 27.0),
    Sketcher.Constraint("DistanceY", 0, 2, 0, 1, 5.95),
    Sketcher.Constraint("DistanceX", 0, 2, -1, 1, 13.5),
    Sketcher.Constraint("DistanceY", 0, 2, -1, 1, 6.2),
])
pad10 = body2.newObject("PartDesign::Pad", "Pad009")
pad10.Profile = sketch15
pad10.Length = 2
pad10.Reversed = True

# Sketch on XZ plane
sketch16 = body2.newObject("Sketcher::SketchObject", "Sketch015")
sketch16.AttachmentSupport = (doc.getObject("XZ_Plane001"), [""])
sketch16.MapMode = "FlatFace"
sketch16.AttachmentOffset = App.Placement(V(0, 0, 15), App.Rotation())
add_polygon(sketch16, [(-13.5, -0.2), (-13.5, -6.2), (-12.5, -6.2), (-12.5, -0.2)])  # lines 0-3
add_polygon(sketch16, [(12.5, -0.2), (12.5, -6.2), (13.5, -6.2), (13.5, -0.2)])  # lines 4-7
sketch16.addConstraint([
    Sketcher.Constraint("Vertical", 0),
    Sketcher.Constraint("Horizontal", 1),
    Sketcher.Constraint("Vertical", 2),
    Sketcher.Constraint("Horizontal", 3),
    Sketcher.Constraint("Vertical", 4),
    Sketcher.Constraint("Horizontal", 5),
    Sketcher.Constraint("Vertical", 6),
    Sketcher.Constraint("Horizontal", 7),
    Sketcher.Constraint("Symmetric", 1, 2, 4, 2, -2),
    Sketcher.Constraint("Symmetric", 3, 2, 6, 2, -2),
    Sketcher.Constraint("DistanceX", 1, 1, 1, 2, 1.0),
    Sketcher.Constraint("DistanceX", 1, 2, 4, 2, 25.0),
    Sketcher.Constraint("DistanceY", 0, 2, 0, 1, 5.95),
    Sketcher.Constraint("DistanceY", 0, 2, -1, 1, 6.2),
])
pad11 = body2.newObject("PartDesign::Pad", "Pad010")
pad11.Profile = sketch16
pad11.Length = 27.999
pad11.Reversed = True

# Sketch on XZ plane
sketch17 = body2.newObject("Sketcher::SketchObject", "Sketch016")
sketch17.AttachmentSupport = (doc.getObject("XZ_Plane001"), [""])
sketch17.MapMode = "FlatFace"
sketch17.AttachmentOffset = App.Placement(V(0, 0, 15), App.Rotation())
add_polygon(sketch17, [(-9.2, -0.2), (-9.2, -1.9), (9.2, -1.9), (9.2, -0.2)])  # lines 0-3
sketch17.addConstraint([
    Sketcher.Constraint("Vertical", 0),
    Sketcher.Constraint("Horizontal", 1),
    Sketcher.Constraint("Vertical", 2),
    Sketcher.Constraint("Horizontal", 3),
    Sketcher.Constraint("DistanceY", 0, 2, 0, 1, 1.65),
    Sketcher.Constraint("DistanceY", 0, 2, -1, 1, 1.9),
    Sketcher.Constraint("DistanceX", 1, 1, 1, 2, 18.301416),
    Sketcher.Constraint("DistanceX", 0, 2, -1, 1, 9.150708),
])
pocket4 = body2.newObject("PartDesign::Pocket", "Pocket003")
pocket4.Profile = sketch17
pocket4.Length = 2

doc.recompute()
